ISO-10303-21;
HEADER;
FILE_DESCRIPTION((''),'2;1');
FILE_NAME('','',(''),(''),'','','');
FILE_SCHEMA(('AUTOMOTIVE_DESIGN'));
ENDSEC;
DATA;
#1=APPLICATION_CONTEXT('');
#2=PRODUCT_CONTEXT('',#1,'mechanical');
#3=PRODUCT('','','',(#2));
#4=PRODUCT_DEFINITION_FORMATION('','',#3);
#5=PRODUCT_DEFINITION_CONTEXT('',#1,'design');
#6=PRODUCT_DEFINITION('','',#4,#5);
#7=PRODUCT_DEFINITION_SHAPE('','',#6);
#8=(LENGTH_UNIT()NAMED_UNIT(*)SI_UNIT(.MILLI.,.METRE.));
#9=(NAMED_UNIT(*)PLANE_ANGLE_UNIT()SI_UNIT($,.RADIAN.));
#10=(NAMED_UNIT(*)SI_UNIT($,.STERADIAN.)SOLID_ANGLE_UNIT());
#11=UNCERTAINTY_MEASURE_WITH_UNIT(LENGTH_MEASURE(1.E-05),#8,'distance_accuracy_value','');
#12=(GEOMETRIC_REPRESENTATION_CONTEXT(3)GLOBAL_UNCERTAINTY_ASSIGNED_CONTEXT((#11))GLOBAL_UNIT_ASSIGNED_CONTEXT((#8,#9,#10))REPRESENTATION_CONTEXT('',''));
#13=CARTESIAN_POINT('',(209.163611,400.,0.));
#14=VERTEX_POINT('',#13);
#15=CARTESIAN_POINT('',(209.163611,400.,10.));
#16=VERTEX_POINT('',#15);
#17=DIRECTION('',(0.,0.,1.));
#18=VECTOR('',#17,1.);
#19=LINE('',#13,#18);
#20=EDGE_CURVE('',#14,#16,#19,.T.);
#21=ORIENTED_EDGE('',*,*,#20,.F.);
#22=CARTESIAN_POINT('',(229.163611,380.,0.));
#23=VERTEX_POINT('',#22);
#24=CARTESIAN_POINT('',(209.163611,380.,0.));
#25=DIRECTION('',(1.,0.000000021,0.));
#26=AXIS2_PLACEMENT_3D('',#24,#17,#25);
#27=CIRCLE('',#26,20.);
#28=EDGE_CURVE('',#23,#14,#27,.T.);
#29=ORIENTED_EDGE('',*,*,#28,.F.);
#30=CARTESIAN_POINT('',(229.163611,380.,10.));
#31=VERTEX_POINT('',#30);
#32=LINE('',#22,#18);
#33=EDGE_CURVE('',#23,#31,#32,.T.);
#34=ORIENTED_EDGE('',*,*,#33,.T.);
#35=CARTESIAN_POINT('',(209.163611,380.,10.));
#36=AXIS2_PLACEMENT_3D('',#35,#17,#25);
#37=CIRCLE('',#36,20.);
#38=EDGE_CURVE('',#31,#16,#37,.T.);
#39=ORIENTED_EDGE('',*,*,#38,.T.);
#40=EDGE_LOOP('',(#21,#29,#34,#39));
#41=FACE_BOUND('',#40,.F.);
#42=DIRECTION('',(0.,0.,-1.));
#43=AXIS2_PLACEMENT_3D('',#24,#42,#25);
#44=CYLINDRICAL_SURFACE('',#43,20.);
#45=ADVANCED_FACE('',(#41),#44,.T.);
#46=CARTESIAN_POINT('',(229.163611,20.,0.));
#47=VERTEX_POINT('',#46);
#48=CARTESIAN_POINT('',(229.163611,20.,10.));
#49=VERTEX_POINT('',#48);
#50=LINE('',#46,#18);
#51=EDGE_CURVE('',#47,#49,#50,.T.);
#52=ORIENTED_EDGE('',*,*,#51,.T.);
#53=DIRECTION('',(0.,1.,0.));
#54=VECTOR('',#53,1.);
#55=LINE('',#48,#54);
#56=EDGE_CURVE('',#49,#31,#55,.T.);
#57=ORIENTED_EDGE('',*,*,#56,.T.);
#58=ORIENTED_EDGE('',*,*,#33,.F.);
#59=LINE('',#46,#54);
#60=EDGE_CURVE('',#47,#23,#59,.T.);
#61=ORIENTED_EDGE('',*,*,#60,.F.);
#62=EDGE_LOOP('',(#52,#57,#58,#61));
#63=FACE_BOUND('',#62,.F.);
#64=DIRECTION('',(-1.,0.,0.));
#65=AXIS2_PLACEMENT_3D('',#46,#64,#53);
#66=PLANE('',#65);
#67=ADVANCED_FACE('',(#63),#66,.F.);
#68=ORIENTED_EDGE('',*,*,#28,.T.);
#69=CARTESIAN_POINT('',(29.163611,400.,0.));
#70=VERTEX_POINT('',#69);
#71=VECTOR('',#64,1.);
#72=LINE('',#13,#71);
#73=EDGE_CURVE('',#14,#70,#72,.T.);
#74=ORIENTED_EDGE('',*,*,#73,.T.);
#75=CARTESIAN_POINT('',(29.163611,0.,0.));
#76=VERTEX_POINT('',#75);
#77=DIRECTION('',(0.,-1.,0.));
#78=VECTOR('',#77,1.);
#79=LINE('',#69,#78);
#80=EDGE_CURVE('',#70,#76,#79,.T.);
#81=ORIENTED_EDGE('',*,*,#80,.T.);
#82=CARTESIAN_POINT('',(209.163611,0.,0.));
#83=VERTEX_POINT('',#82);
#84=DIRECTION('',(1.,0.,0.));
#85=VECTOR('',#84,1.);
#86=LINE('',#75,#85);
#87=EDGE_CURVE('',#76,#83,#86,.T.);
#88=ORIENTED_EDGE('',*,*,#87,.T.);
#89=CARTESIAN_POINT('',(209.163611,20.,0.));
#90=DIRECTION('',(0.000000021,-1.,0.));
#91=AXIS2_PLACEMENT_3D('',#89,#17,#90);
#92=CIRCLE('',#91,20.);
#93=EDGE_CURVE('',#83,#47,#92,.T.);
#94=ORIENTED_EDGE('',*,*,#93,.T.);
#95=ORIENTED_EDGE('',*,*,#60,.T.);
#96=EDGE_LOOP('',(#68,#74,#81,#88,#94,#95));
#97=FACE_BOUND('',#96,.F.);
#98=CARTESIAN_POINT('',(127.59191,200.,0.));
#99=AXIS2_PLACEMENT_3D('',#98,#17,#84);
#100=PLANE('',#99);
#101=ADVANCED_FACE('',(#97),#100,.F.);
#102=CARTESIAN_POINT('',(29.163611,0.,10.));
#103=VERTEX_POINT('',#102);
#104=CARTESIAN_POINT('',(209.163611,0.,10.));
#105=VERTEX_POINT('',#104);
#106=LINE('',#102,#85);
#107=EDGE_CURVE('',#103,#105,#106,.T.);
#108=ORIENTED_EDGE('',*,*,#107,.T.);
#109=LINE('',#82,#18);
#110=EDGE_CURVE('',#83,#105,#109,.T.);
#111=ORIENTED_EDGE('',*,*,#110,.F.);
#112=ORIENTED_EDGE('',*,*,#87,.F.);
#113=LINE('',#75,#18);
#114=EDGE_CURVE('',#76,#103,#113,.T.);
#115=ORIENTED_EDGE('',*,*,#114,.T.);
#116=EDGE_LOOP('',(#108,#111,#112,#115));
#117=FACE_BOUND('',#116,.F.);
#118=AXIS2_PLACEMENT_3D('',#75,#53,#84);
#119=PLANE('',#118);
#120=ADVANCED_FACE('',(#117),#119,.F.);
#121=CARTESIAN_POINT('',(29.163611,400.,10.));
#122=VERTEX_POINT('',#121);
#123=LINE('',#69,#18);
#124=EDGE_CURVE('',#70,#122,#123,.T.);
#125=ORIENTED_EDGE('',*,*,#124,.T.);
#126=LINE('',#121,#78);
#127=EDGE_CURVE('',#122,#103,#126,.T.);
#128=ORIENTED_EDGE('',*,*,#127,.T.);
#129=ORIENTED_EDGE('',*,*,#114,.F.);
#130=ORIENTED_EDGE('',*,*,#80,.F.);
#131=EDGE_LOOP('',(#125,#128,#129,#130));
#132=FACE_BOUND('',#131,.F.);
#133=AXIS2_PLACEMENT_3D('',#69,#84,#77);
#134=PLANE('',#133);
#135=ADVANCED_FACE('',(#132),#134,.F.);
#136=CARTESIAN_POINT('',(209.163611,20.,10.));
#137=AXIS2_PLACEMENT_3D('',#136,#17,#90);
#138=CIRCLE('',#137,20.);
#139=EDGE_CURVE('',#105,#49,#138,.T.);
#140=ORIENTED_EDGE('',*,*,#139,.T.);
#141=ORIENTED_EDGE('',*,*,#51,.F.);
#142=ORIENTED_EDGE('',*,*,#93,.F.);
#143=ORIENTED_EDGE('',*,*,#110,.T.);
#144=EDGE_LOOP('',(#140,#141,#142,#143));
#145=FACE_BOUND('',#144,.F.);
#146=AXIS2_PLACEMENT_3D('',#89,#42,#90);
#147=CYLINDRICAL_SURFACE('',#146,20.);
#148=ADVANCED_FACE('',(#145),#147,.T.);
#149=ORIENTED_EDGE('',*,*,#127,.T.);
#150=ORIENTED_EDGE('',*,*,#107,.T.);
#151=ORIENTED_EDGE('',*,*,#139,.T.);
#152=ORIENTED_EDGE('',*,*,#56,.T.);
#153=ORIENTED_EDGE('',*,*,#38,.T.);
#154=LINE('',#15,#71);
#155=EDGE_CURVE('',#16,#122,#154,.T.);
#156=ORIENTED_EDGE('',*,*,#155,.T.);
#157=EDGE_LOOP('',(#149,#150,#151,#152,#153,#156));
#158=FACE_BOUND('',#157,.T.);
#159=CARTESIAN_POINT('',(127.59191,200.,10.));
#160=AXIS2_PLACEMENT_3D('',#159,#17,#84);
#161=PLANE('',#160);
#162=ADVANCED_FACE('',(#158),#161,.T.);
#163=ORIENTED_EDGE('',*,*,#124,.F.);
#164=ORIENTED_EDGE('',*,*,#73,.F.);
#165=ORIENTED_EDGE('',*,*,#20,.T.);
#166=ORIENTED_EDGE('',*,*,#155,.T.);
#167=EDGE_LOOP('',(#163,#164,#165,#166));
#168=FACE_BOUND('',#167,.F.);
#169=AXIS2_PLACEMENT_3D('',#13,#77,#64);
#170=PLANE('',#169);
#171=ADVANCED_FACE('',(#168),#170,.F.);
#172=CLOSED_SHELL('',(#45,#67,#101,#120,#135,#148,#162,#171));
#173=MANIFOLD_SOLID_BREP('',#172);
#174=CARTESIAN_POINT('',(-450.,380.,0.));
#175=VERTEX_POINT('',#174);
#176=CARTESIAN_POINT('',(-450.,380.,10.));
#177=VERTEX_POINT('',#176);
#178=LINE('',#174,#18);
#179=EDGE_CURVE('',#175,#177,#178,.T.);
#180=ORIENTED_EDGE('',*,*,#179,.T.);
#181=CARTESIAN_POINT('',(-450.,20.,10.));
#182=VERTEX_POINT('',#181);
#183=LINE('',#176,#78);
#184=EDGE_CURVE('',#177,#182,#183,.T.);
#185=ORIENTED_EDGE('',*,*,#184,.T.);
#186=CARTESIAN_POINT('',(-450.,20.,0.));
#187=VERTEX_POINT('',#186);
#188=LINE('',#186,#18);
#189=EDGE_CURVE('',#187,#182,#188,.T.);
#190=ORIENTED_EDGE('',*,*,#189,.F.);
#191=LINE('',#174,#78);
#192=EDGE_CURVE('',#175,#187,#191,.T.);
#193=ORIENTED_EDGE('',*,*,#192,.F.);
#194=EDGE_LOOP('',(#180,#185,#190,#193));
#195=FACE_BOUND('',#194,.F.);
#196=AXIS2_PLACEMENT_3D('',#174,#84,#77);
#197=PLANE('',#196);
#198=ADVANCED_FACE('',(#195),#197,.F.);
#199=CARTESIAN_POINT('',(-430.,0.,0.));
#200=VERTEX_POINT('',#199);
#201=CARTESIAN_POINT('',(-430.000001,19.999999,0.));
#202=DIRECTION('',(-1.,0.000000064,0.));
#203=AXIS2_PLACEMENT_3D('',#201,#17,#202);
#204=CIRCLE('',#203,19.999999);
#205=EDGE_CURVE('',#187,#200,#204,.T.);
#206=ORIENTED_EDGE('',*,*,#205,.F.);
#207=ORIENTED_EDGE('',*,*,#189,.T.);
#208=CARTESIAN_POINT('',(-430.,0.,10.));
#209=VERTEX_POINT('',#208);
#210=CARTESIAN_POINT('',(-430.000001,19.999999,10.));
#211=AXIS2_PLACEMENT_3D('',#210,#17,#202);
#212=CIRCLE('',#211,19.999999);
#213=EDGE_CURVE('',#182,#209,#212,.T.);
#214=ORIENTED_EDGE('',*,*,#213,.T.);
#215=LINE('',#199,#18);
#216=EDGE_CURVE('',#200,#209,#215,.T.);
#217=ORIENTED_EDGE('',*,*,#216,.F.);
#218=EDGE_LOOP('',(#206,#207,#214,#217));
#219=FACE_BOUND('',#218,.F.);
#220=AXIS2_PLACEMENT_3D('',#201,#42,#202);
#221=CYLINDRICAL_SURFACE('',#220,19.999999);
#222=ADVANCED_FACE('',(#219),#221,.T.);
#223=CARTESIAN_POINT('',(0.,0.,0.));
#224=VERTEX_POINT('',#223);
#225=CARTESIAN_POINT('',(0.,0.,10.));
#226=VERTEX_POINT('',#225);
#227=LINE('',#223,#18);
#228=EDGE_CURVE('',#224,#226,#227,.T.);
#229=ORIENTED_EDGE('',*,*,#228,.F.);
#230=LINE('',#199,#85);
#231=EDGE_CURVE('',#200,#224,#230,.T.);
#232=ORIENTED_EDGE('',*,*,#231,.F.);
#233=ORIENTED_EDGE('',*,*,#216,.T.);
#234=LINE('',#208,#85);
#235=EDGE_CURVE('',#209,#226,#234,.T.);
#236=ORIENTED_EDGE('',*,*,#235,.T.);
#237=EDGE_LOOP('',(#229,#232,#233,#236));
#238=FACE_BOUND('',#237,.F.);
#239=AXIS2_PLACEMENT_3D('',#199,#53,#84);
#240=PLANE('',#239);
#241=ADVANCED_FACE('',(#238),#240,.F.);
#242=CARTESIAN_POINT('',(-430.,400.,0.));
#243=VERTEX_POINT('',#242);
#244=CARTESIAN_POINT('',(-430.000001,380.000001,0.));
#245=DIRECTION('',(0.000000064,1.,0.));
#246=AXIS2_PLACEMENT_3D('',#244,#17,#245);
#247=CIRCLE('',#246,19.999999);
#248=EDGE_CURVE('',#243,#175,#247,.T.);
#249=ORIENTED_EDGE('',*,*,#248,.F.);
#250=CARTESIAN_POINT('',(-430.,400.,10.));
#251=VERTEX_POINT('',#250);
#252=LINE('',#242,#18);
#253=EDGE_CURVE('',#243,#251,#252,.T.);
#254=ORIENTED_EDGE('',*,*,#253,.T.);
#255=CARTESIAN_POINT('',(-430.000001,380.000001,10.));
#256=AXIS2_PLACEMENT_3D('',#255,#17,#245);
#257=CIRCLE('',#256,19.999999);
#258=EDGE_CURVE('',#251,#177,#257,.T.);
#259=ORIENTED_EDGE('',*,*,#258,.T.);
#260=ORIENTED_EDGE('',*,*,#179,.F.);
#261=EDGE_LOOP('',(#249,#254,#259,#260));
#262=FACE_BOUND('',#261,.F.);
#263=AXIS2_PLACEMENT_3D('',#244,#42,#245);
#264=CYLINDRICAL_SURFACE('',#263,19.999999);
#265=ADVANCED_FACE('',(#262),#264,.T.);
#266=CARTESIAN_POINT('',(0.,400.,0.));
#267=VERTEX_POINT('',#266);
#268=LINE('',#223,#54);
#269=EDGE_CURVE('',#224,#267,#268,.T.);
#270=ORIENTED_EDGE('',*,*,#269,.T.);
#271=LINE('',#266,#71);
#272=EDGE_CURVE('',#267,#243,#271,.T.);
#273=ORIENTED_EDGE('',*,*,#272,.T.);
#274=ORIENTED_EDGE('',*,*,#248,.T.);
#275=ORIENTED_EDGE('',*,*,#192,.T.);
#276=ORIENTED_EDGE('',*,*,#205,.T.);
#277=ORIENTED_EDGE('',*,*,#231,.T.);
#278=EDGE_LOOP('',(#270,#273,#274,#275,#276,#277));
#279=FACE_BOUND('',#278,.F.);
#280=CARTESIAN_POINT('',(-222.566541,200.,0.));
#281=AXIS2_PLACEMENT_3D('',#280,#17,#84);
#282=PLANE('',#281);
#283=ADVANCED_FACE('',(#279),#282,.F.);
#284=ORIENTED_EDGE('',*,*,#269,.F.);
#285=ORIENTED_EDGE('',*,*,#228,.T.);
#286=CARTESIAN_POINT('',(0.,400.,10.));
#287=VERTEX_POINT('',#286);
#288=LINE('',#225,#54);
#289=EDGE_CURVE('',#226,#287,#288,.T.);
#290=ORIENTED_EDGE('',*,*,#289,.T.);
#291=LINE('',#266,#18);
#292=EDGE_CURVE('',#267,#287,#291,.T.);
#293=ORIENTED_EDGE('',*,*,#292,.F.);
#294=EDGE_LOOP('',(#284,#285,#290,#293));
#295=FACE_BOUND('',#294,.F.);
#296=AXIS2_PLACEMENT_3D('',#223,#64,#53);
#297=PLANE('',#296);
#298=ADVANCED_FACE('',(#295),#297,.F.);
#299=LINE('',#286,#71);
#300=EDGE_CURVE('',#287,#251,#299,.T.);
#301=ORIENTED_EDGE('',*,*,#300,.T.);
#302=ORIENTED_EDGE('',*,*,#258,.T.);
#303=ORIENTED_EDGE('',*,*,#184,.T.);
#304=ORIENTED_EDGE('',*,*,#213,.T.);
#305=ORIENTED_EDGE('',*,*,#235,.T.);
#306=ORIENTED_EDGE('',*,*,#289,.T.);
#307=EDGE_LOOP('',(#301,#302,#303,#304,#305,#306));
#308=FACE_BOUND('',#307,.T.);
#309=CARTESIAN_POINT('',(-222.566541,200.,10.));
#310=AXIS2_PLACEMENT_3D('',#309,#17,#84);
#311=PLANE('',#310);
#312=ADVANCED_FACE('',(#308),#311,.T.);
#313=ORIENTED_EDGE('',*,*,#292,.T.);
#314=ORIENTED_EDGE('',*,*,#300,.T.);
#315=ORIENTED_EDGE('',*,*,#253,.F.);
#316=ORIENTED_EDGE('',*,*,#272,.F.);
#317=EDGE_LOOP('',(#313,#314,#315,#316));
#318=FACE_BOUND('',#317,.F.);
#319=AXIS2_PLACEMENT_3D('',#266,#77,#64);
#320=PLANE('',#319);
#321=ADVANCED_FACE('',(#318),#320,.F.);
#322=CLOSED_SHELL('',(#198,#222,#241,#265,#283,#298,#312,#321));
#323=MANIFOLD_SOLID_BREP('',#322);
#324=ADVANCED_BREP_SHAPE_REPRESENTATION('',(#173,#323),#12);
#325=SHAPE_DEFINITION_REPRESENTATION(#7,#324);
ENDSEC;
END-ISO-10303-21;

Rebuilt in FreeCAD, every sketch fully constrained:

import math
import FreeCAD as App
import Part
import Sketcher
from FreeCAD import Vector

doc = App.newDocument("Part")
params = doc.addObject("Spreadsheet::Sheet", "Params")
for row, (alias, value) in enumerate([
    ("sketch1_radius", "19.999999 mm"),
    ("sketch1_width", "430 mm"),
    ("sketch1_height", "400 mm"),
    ("pad1_length", "10 mm"),
    ("sketch2_radius", "20 mm"),
    ("sketch2_width", "180 mm"),
    ("sketch2_height", "400 mm"),
    ("pad2_length", "10 mm"),
], start=1):
    params.set(f"A{row}", alias)
    params.set(f"B{row}", "=" + value)
    params.setAlias(f"B{row}", alias)

body = doc.addObject("PartDesign::Body", "Body")

sketch1 = body.newObject("Sketcher::SketchObject", "Sketch")
sketch1.AttachmentSupport = (doc.getObject("XY_Plane"), [""])
sketch1.MapMode = "FlatFace"
sketch1.addGeometry([
    Part.LineSegment(Vector(-430, 0, 0), Vector(0, 0, 0)),
    Part.LineSegment(Vector(0, 0, 0), Vector(0, 400, 0)),
    Part.LineSegment(Vector(0, 400, 0), Vector(-430, 400, 0)),
    Part.ArcOfCircle(Part.Circle(Vector(-430, 380, 0), Vector(0, 0, 1), 20), math.radians(90), math.radians(180)),
    Part.LineSegment(Vector(-450, 380, 0), Vector(-450, 20, 0)),
    Part.ArcOfCircle(Part.Circle(Vector(-430, 20, 0), Vector(0, 0, 1), 20), math.radians(180), math.radians(270)),
], False)
sketch1.addConstraint([
    Sketcher.Constraint("Coincident", 0, 2, 1, 1),
    Sketcher.Constraint("Coincident", 1, 2, 2, 1),
    Sketcher.Constraint("Tangent", 2, 2, 3, 1),
    Sketcher.Constraint("Tangent", 3, 2, 4, 1),
    Sketcher.Constraint("Tangent", 4, 2, 5, 1),
    Sketcher.Constraint("Tangent", 5, 2, 0, 1),
    Sketcher.Constraint("Horizontal", 0),
    Sketcher.Constraint("Vertical", 1),
    Sketcher.Constraint("Horizontal", 2),
    Sketcher.Constraint("Vertical", 4),
    Sketcher.Constraint("Coincident", 0, 2, -1, 1),
    Sketcher.Constraint("Equal", 3, 5),
    Sketcher.Constraint("Radius", 3, 19.999999),
    Sketcher.Constraint("DistanceX", 0, 1, 0, 2, 430.0),
    Sketcher.Constraint("DistanceY", 1, 1, 1, 2, 400.0),
])
sketch1.setExpression("Constraints[12]", "Params.sketch1_radius")
sketch1.setExpression("Constraints[13]", "Params.sketch1_width")
sketch1.setExpression("Constraints[14]", "Params.sketch1_height")
pad1 = body.newObject("PartDesign::Pad", "Pad")
pad1.Profile = sketch1
pad1.setExpression("Length", "Params.pad1_length")
body2 = doc.addObject("PartDesign::Body", "Body001")

sketch2 = body2.newObject("Sketcher::SketchObject", "Sketch001")
sketch2.AttachmentSupport = (doc.getObject("XY_Plane001"), [""])
sketch2.MapMode = "FlatFace"
sketch2.addGeometry([
    Part.LineSegment(Vector(29, 400, 0), Vector(29, 0, 0)),
    Part.LineSegment(Vector(29, 0, 0), Vector(209, 0, 0)),
    Part.ArcOfCircle(Part.Circle(Vector(209, 20, 0), Vector(0, 0, 1), 20), math.radians(-90), math.radians(0)),
    Part.LineSegment(Vector(229, 20, 0), Vector(229, 380, 0)),
    Part.ArcOfCircle(Part.Circle(Vector(209, 380, 0), Vector(0, 0, 1), 20), math.radians(0), math.radians(90)),
    Part.LineSegment(Vector(209, 400, 0), Vector(29, 400, 0)),
], False)
sketch2.addConstraint([
    Sketcher.Constraint("Coincident", 0, 2, 1, 1),
    Sketcher.Constraint("Tangent", 1, 2, 2, 1),
    Sketcher.Constraint("Tangent", 2, 2, 3, 1),
    Sketcher.Constraint("Tangent", 3, 2, 4, 1),
    Sketcher.Constraint("Tangent", 4, 2, 5, 1),
    Sketcher.Constraint("Coincident", 5, 2, 0, 1),
    Sketcher.Constraint("Vertical", 0),
    Sketcher.Constraint("Horizontal", 1),
    Sketcher.Constraint("Vertical", 3),
    Sketcher.Constraint("Horizontal", 5),
    Sketcher.Constraint("Equal", 2, 4),
    Sketcher.Constraint("PointOnObject", 0, 2, -1),
    Sketcher.Constraint("Radius", 2, 20.0),
    Sketcher.Constraint("DistanceX", 1, 1, 1, 2, 180.0),
    Sketcher.Constraint("DistanceY", 0, 2, 0, 1, 400.0),
    Sketcher.Constraint("DistanceX", -1, 1, 2, 3, 209.163611),
])
sketch2.setExpression("Constraints[12]", "Params.sketch2_radius")
sketch2.setExpression("Constraints[13]", "Params.sketch2_width")
sketch2.setExpression("Constraints[14]", "Params.sketch2_height")
pad2 = body2.newObject("PartDesign::Pad", "Pad001")
pad2.Profile = sketch2
pad2.setExpression("Length", "Params.pad2_length")

doc.recompute()
